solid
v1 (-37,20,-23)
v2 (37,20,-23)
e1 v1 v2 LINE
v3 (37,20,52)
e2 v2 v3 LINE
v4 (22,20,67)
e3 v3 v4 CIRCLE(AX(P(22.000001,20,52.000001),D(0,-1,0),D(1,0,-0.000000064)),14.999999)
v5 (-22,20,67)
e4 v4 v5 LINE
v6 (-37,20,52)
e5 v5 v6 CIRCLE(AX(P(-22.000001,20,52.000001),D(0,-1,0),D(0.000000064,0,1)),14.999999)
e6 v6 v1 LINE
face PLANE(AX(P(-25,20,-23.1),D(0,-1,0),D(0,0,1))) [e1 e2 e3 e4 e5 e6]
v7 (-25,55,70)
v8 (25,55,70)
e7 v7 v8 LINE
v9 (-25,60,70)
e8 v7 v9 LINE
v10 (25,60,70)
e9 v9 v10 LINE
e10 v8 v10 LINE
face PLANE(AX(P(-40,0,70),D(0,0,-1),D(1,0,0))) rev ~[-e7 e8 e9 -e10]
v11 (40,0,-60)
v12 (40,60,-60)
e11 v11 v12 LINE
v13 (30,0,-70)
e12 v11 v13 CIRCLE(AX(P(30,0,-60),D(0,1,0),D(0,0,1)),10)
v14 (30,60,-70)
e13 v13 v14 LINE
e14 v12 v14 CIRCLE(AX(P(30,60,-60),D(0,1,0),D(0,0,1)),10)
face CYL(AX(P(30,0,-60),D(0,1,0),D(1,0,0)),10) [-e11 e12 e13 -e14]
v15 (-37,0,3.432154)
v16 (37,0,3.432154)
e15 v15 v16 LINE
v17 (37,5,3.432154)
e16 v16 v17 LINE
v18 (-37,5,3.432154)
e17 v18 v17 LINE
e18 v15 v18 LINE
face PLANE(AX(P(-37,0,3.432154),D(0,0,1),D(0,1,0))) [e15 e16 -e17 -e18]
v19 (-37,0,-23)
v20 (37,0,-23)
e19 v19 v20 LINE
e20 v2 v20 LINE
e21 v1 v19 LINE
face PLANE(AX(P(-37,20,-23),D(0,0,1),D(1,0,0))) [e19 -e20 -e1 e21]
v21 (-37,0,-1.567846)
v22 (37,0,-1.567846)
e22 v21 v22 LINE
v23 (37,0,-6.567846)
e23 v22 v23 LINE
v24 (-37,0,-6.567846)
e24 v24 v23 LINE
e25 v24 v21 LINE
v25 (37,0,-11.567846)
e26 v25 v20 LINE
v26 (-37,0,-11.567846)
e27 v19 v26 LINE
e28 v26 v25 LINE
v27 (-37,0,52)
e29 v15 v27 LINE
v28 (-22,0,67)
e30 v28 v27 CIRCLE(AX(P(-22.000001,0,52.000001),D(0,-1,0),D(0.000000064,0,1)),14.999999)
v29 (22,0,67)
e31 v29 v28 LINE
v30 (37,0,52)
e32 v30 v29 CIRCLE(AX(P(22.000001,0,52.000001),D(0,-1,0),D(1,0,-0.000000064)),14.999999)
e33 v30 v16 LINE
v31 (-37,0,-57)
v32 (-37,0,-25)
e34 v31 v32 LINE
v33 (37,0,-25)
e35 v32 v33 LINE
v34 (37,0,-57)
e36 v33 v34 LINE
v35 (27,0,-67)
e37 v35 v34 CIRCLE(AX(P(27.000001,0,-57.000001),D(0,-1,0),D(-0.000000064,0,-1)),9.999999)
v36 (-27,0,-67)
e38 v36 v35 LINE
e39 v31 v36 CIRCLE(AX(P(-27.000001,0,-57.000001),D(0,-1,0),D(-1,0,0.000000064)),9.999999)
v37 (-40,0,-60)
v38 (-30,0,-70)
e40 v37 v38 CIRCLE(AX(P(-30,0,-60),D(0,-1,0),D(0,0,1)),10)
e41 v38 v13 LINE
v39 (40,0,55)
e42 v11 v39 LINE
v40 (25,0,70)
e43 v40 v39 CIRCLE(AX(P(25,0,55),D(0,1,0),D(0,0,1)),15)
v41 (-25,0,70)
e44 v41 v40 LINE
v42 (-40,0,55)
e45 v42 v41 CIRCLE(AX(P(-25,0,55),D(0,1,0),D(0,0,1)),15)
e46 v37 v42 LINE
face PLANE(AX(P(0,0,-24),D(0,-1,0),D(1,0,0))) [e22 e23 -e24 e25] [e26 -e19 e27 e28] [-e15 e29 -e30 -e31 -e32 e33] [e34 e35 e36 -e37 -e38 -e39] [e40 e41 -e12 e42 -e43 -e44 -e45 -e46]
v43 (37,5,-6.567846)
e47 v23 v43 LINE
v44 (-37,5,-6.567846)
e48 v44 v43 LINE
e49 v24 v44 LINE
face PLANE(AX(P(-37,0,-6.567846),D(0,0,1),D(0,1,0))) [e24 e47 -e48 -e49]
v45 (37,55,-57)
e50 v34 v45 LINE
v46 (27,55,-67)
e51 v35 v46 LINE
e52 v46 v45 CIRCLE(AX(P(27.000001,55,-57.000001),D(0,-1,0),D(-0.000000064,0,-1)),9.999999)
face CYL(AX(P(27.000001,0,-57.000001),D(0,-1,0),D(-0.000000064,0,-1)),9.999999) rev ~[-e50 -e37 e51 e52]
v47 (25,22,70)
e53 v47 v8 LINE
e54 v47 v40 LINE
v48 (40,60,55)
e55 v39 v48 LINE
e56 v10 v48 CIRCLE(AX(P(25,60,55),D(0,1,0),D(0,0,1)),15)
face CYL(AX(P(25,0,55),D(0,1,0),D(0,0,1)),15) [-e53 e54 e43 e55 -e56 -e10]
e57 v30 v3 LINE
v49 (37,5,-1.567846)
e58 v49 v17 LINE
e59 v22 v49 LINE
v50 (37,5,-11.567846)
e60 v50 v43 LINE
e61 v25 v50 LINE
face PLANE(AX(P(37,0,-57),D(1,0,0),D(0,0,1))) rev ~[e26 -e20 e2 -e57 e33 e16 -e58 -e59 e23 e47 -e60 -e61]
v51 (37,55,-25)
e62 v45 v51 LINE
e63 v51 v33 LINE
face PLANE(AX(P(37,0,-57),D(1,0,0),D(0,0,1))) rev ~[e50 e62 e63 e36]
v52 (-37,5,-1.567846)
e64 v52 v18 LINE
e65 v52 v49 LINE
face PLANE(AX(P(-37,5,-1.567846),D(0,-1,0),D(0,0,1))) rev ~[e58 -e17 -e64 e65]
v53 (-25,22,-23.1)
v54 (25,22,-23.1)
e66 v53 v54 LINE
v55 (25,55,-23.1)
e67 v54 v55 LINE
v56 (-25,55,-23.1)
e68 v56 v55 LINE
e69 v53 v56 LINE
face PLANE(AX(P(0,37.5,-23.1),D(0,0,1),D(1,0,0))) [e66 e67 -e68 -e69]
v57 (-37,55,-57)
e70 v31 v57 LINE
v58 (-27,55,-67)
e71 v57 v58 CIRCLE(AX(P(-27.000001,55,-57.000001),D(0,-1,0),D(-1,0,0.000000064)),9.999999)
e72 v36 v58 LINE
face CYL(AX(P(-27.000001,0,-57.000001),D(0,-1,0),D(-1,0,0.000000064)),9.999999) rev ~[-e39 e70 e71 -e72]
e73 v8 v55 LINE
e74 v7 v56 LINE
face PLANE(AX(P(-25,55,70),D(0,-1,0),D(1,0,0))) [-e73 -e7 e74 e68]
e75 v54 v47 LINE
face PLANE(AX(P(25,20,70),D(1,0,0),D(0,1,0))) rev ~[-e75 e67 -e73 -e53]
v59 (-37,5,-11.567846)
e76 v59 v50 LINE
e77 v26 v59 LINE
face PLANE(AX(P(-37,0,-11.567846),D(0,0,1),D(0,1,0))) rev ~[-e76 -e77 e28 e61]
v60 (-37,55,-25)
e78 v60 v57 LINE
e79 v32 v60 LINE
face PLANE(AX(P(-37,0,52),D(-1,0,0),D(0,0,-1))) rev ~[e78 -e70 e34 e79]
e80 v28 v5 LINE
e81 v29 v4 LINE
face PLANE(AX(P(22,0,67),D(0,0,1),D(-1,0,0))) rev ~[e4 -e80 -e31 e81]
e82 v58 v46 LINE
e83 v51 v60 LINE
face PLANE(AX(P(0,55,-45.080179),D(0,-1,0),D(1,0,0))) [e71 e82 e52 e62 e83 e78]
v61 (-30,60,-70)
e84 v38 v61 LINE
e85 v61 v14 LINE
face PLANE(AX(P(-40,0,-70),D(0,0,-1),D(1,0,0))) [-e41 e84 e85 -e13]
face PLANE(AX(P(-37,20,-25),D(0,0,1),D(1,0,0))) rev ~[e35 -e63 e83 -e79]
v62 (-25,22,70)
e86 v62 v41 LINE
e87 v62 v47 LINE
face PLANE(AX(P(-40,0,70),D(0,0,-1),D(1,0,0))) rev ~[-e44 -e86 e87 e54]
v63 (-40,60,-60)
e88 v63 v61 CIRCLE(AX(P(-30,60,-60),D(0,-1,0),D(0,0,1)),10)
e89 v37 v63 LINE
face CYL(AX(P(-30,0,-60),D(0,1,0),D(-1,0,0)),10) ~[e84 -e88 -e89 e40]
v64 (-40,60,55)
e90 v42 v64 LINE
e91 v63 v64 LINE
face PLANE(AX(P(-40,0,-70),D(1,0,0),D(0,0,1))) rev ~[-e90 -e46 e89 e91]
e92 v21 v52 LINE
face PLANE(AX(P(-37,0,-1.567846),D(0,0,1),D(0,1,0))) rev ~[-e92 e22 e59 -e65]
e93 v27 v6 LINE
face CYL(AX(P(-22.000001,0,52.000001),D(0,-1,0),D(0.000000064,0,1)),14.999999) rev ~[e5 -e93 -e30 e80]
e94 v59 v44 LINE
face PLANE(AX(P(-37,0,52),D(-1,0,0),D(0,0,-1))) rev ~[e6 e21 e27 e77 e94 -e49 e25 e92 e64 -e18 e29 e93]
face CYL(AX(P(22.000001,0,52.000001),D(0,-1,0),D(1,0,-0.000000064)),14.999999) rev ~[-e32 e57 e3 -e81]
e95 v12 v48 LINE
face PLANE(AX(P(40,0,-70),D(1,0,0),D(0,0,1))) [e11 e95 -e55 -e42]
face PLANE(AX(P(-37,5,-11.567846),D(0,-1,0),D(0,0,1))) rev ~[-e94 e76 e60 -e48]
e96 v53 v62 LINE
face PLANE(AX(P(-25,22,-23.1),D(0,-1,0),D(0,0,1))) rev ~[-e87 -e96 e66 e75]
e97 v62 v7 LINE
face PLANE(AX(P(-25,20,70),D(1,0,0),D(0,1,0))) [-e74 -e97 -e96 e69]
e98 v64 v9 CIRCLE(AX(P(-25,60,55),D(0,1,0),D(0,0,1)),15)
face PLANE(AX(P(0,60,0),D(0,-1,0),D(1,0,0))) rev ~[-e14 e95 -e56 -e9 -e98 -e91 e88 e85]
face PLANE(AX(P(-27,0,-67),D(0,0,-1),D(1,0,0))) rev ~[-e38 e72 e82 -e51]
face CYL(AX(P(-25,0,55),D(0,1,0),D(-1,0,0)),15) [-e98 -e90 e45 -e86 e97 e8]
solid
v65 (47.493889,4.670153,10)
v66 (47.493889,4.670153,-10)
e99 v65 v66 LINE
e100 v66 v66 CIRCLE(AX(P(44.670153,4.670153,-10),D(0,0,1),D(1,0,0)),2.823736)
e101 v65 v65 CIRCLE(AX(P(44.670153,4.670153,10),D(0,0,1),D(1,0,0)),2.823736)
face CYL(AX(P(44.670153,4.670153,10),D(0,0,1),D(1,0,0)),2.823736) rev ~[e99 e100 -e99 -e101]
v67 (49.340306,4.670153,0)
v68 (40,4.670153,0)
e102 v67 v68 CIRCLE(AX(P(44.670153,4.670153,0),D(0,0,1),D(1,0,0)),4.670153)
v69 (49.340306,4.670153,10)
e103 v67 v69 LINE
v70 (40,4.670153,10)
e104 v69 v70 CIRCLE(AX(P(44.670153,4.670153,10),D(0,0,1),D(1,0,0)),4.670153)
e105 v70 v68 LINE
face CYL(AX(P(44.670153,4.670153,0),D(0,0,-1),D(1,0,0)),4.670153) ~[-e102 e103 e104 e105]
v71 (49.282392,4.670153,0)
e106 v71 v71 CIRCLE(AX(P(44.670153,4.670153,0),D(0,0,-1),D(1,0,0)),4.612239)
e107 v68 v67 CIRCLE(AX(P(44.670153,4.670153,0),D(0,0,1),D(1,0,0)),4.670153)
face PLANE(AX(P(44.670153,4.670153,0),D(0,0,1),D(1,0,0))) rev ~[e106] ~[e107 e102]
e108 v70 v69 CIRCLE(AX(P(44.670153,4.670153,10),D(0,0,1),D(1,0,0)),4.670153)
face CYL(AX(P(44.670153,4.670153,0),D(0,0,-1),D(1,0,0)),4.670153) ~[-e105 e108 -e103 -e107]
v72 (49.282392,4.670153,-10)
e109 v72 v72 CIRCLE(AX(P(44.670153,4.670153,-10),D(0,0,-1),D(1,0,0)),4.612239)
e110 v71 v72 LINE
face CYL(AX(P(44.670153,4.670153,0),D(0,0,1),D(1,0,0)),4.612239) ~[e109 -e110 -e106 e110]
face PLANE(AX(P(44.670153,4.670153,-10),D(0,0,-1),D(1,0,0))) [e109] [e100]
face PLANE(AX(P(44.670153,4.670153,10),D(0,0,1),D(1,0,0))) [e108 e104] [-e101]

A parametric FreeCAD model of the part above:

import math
import FreeCAD as App
import Part
import Sketcher
from FreeCAD import Vector
Q = App.Units.Quantity


def edges_at(feature, points):
    """Names of the edges that pass closest to the given points."""
    edges = feature.Shape.Edges
    near = lambda p: min(range(len(edges)), key=lambda i: edges[i].distToShape(Part.Vertex(*p))[0])
    return sorted({f"Edge{near(p) + 1}" for p in points})

doc = App.newDocument("Part")
body = doc.addObject("PartDesign::Body", "Body")
body.AllowCompound = True

# Sketch on XZ plane
sketch1 = body.newObject("Sketcher::SketchObject", "Sketch")
sketch1.AttachmentSupport = (doc.getObject("XZ_Plane"), [""])
sketch1.MapMode = "FlatFace"
sketch1.addGeometry(Part.LineSegment(Vector(-40, 70, 0), Vector(-40, -70, 0)), False)
sketch1.addGeometry(Part.LineSegment(Vector(-40, -70, 0), Vector(40, -70, 0)), False)
sketch1.addGeometry(Part.LineSegment(Vector(40, -70, 0), Vector(40, 70, 0)), False)
sketch1.addGeometry(Part.LineSegment(Vector(40, 70, 0), Vector(-40, 70, 0)), False)
sketch1.addConstraint(Sketcher.Constraint("Coincident", 0, 2, 1, 1))
sketch1.addConstraint(Sketcher.Constraint("Coincident", 1, 2, 2, 1))
sketch1.addConstraint(Sketcher.Constraint("Coincident", 2, 2, 3, 1))
sketch1.addConstraint(Sketcher.Constraint("Coincident", 3, 2, 0, 1))
sketch1.addConstraint(Sketcher.Constraint("Vertical", 0))
sketch1.addConstraint(Sketcher.Constraint("Horizontal", 1))
sketch1.addConstraint(Sketcher.Constraint("Vertical", 2))
sketch1.addConstraint(Sketcher.Constraint("Horizontal", 3))
sketch1.addConstraint(Sketcher.Constraint("Symmetric", 0, 2, 2, 2, -1, 1))
sketch1.addConstraint(Sketcher.Constraint("DistanceX", 1, 1, 1, 2, Q("80 mm")))
sketch1.addConstraint(Sketcher.Constraint("DistanceY", 0, 2, 0, 1, Q("140 mm")))
pad1 = body.newObject("PartDesign::Pad", "Pad")
pad1.Profile = sketch1
pad1.Length = 60
pad1.Reversed = True
doc.recompute()

fillet = body.newObject("PartDesign::Fillet", "Fillet")
fillet.Base = (pad1, edges_at(pad1, [(-40, 30, 70)]))
fillet.Radius = 15
doc.recompute()

fillet2 = body.newObject("PartDesign::Fillet", "Fillet001")
fillet2.Base = (fillet, edges_at(fillet, [(40, 30, 70)]))
fillet2.Radius = 15
doc.recompute()

fillet3 = body.newObject("PartDesign::Fillet", "Fillet002")
fillet3.Base = (fillet2, edges_at(fillet2, [(-40, 30, -70), (40, 30, -70)]))
fillet3.Radius = 10

# Sketch on XZ plane
sketch2 = body.newObject("Sketcher::SketchObject", "Sketch001")
sketch2.AttachmentSupport = (doc.getObject("XZ_Plane"), [""])
sketch2.MapMode = "FlatFace"
sketch2.addGeometry(Part.LineSegment(Vector(37, -57, 0), Vector(37, -25, 0)), False)
sketch2.addGeometry(Part.LineSegment(Vector(37, -25, 0), Vector(-37, -25, 0)), False)
sketch2.addGeometry(Part.LineSegment(Vector(-37, -25, 0), Vector(-37, -57, 0)), False)
sketch2.addGeometry(Part.ArcOfCircle(Part.Circle(Vector(-27, -57, 0), Vector(0, 0, 1), 10), math.radians(180), math.radians(270)), False)
sketch2.addGeometry(Part.LineSegment(Vector(-27, -67, 0), Vector(27, -67, 0)), False)
sketch2.addGeometry(Part.ArcOfCircle(Part.Circle(Vector(27, -57, 0), Vector(0, 0, 1), 10), math.radians(-90), math.radians(0)), False)
sketch2.addConstraint(Sketcher.Constraint("Coincident", 0, 2, 1, 1))
sketch2.addConstraint(Sketcher.Constraint("Coincident", 1, 2, 2, 1))
sketch2.addConstraint(Sketcher.Constraint("Tangent", 2, 2, 3, 1))
sketch2.addConstraint(Sketcher.Constraint("Tangent", 3, 2, 4, 1))
sketch2.addConstraint(Sketcher.Constraint("Tangent", 4, 2, 5, 1))
sketch2.addConstraint(Sketcher.Constraint("Tangent", 5, 2, 0, 1))
sketch2.addConstraint(Sketcher.Constraint("Vertical", 0))
sketch2.addConstraint(Sketcher.Constraint("Horizontal", 1))
sketch2.addConstraint(Sketcher.Constraint("Vertical", 2))
sketch2.addConstraint(Sketcher.Constraint("Horizontal", 4))
sketch2.addConstraint(Sketcher.Constraint("Equal", 3, 5))
sketch2.addConstraint(Sketcher.Constraint("Radius", 3, Q("9.999999 mm")))
sketch2.addConstraint(Sketcher.Constraint("DistanceX", 1, 2, 1, 1, Q("74 mm")))
sketch2.addConstraint(Sketcher.Constraint("DistanceY", 0, 1, 0, 2, Q("32 mm")))
sketch2.addConstraint(Sketcher.Constraint("DistanceX", 3, 3, -1, 1, Q("27.000001 mm")))
sketch2.addConstraint(Sketcher.Constraint("DistanceY", 3, 3, -1, 1, Q("57.000001 mm")))
pocket1 = body.newObject("PartDesign::Pocket", "Pocket")
pocket1.Profile = sketch2
pocket1.Length = 55

# Sketch on XZ plane
sketch3 = body.newObject("Sketcher::SketchObject", "Sketch002")
sketch3.AttachmentSupport = (doc.getObject("XZ_Plane"), [""])
sketch3.MapMode = "FlatFace"
sketch3.addGeometry(Part.ArcOfCircle(Part.Circle(Vector(22, 52, 0), Vector(0, 0, 1), 15), math.radians(0), math.radians(90)), False)
sketch3.addGeometry(Part.LineSegment(Vector(22, 67, 0), Vector(-22, 67, 0)), False)
sketch3.addGeometry(Part.ArcOfCircle(Part.Circle(Vector(-22, 52, 0), Vector(0, 0, 1), 15), math.radians(90), math.radians(180)), False)
sketch3.addGeometry(Part.LineSegment(Vector(-37, 52, 0), Vector(-37, -25, 0)), False)
sketch3.addGeometry(Part.LineSegment(Vector(-37, -25, 0), Vector(37, -25, 0)), False)
sketch3.addGeometry(Part.LineSegment(Vector(37, -25, 0), Vector(37, 52, 0)), False)
sketch3.addConstraint(Sketcher.Constraint("Tangent", 0, 2, 1, 1))
sketch3.addConstraint(Sketcher.Constraint("Tangent", 1, 2, 2, 1))
sketch3.addConstraint(Sketcher.Constraint("Tangent", 2, 2, 3, 1))
sketch3.addConstraint(Sketcher.Constraint("Coincident", 3, 2, 4, 1))
sketch3.addConstraint(Sketcher.Constraint("Coincident", 4, 2, 5, 1))
sketch3.addConstraint(Sketcher.Constraint("Tangent", 5, 2, 0, 1))
sketch3.addConstraint(Sketcher.Constraint("Horizontal", 1))
sketch3.addConstraint(Sketcher.Constraint("Vertical", 3))
sketch3.addConstraint(Sketcher.Constraint("Horizontal", 4))
sketch3.addConstraint(Sketcher.Constraint("Vertical", 5))
sketch3.addConstraint(Sketcher.Constraint("Equal", 0, 2))
sketch3.addConstraint(Sketcher.Constraint("Radius", 0, Q("14.999999 mm")))
sketch3.addConstraint(Sketcher.Constraint("DistanceX", 1, 2, 1, 1, Q("44 mm")))
sketch3.addConstraint(Sketcher.Constraint("DistanceY", 3, 2, 3, 1, Q("77 mm")))
sketch3.addConstraint(Sketcher.Constraint("DistanceX", -1, 1, 0, 3, Q("22.000001 mm")))
sketch3.addConstraint(Sketcher.Constraint("DistanceY", -1, 1, 0, 3, Q("52.000001 mm")))
pocket2 = body.newObject("PartDesign::Pocket", "Pocket001")
pocket2.Profile = sketch3
pocket2.Length = 20

# Sketch on XZ plane
sketch4 = body.newObject("Sketcher::SketchObject", "Sketch003")
sketch4.AttachmentSupport = (doc.getObject("XZ_Plane"), [""])
sketch4.MapMode = "FlatFace"
sketch4.AttachmentOffset = App.Placement(Vector(0, 0, -20), App.Rotation())
sketch4.addGeometry(Part.LineSegment(Vector(-37, -23, 0), Vector(-37, -25, 0)), False)
sketch4.addGeometry(Part.LineSegment(Vector(-37, -25, 0), Vector(37, -25, 0)), False)
sketch4.addGeometry(Part.LineSegment(Vector(37, -25, 0), Vector(37, -23, 0)), False)
sketch4.addGeometry(Part.LineSegment(Vector(37, -23, 0), Vector(-37, -23, 0)), False)
sketch4.addConstraint(Sketcher.Constraint("Coincident", 0, 2, 1, 1))
sketch4.addConstraint(Sketcher.Constraint("Coincident", 1, 2, 2, 1))
sketch4.addConstraint(Sketcher.Constraint("Coincident", 2, 2, 3, 1))
sketch4.addConstraint(Sketcher.Constraint("Coincident", 3, 2, 0, 1))
sketch4.addConstraint(Sketcher.Constraint("Vertical", 0))
sketch4.addConstraint(Sketcher.Constraint("Horizontal", 1))
sketch4.addConstraint(Sketcher.Constraint("Vertical", 2))
sketch4.addConstraint(Sketcher.Constraint("Horizontal", 3))
sketch4.addConstraint(Sketcher.Constraint("DistanceX", 1, 1, 1, 2, Q("74 mm")))
sketch4.addConstraint(Sketcher.Constraint("DistanceY", 0, 2, 0, 1, Q("2 mm")))
sketch4.addConstraint(Sketcher.Constraint("DistanceX", 0, 2, -1, 1, Q("37 mm")))
sketch4.addConstraint(Sketcher.Constraint("DistanceY", 0, 2, -1, 1, Q("25 mm")))
pad2 = body.newObject("PartDesign::Pad", "Pad001")
pad2.Profile = sketch4
pad2.Length = 20

# Sketch on XY plane
sketch5 = body.newObject("Sketcher::SketchObject", "Sketch004")
sketch5.AttachmentSupport = (doc.getObject("XY_Plane"), [""])
sketch5.MapMode = "FlatFace"
sketch5.AttachmentOffset = App.Placement(Vector(0, 0, 70), App.Rotation())
sketch5.addGeometry(Part.LineSegment(Vector(-25, 55, 0), Vector(-25, 20, 0)), False)
sketch5.addGeometry(Part.LineSegment(Vector(-25, 20, 0), Vector(25, 20, 0)), False)
sketch5.addGeometry(Part.LineSegment(Vector(25, 20, 0), Vector(25, 55, 0)), False)
sketch5.addGeometry(Part.LineSegment(Vector(25, 55, 0), Vector(-25, 55, 0)), False)
sketch5.addConstraint(Sketcher.Constraint("Coincident", 0, 2, 1, 1))
sketch5.addConstraint(Sketcher.Constraint("Coincident", 1, 2, 2, 1))
sketch5.addConstraint(Sketcher.Constraint("Coincident", 2, 2, 3, 1))
sketch5.addConstraint(Sketcher.Constraint("Coincident", 3, 2, 0, 1))
sketch5.addConstraint(Sketcher.Constraint("Vertical", 0))
sketch5.addConstraint(Sketcher.Constraint("Horizontal", 1))
sketch5.addConstraint(Sketcher.Constraint("Vertical", 2))
sketch5.addConstraint(Sketcher.Constraint("Horizontal", 3))
sketch5.addConstraint(Sketcher.Constraint("DistanceX", 1, 1, 1, 2, Q("50 mm")))
sketch5.addConstraint(Sketcher.Constraint("DistanceY", 0, 2, 0, 1, Q("35 mm")))
sketch5.addConstraint(Sketcher.Constraint("DistanceX", 0, 2, -1, 1, Q("25 mm")))
sketch5.addConstraint(Sketcher.Constraint("DistanceY", -1, 1, 0, 2, Q("20 mm")))
pocket3 = body.newObject("PartDesign::Pocket", "Pocket002")
pocket3.Profile = sketch5
pocket3.Length = 93.1

# Sketch on YZ plane
sketch6 = body.newObject("Sketcher::SketchObject", "Sketch005")
sketch6.AttachmentSupport = (doc.getObject("YZ_Plane"), [""])
sketch6.MapMode = "FlatFace"
sketch6.AttachmentOffset = App.Placement(Vector(0, 0, -25), App.Rotation())
sketch6.addGeometry(Part.LineSegment(Vector(20, 70, 0), Vector(20, -23.1, 0)), False)
sketch6.addGeometry(Part.LineSegment(Vector(20, -23.1, 0), Vector(22, -23.1, 0)), False)
sketch6.addGeometry(Part.LineSegment(Vector(22, -23.1, 0), Vector(22, 70, 0)), False)
sketch6.addGeometry(Part.LineSegment(Vector(22, 70, 0), Vector(20, 70, 0)), False)
sketch6.addConstraint(Sketcher.Constraint("Coincident", 0, 2, 1, 1))
sketch6.addConstraint(Sketcher.Constraint("Coincident", 1, 2, 2, 1))
sketch6.addConstraint(Sketcher.Constraint("Coincident", 2, 2, 3, 1))
sketch6.addConstraint(Sketcher.Constraint("Coincident", 3, 2, 0, 1))
sketch6.addConstraint(Sketcher.Constraint("Vertical", 0))
sketch6.addConstraint(Sketcher.Constraint("Horizontal", 1))
sketch6.addConstraint(Sketcher.Constraint("Vertical", 2))
sketch6.addConstraint(Sketcher.Constraint("Horizontal", 3))
sketch6.addConstraint(Sketcher.Constraint("DistanceX", 1, 1, 1, 2, Q("2 mm")))
sketch6.addConstraint(Sketcher.Constraint("DistanceY", 0, 2, 0, 1, Q("93.1 mm")))
sketch6.addConstraint(Sketcher.Constraint("DistanceX", -1, 1, 0, 2, Q("20 mm")))
sketch6.addConstraint(Sketcher.Constraint("DistanceY", -1, 1, 2, 2, Q("70 mm")))
pad3 = body.newObject("PartDesign::Pad", "Pad002")
pad3.Profile = sketch6
pad3.Length = 50

# Sketch on YZ plane
sketch7 = body.newObject("Sketcher::SketchObject", "Sketch006")
sketch7.AttachmentSupport = (doc.getObject("YZ_Plane"), [""])
sketch7.MapMode = "FlatFace"
sketch7.AttachmentOffset = App.Placement(Vector(0, 0, -37), App.Rotation())
sketch7.addGeometry(Part.LineSegment(Vector(0, 3.4, 0), Vector(0, -1.6, 0)), False)
sketch7.addGeometry(Part.LineSegment(Vector(0, -1.6, 0), Vector(5, -1.6, 0)), False)
sketch7.addGeometry(Part.LineSegment(Vector(5, -1.6, 0), Vector(5, 3.4, 0)), False)
sketch7.addGeometry(Part.LineSegment(Vector(5, 3.4, 0), Vector(0, 3.4, 0)), False)
sketch7.addGeometry(Part.LineSegment(Vector(0, -6.6, 0), Vector(0, -11.6, 0)), False)
sketch7.addGeometry(Part.LineSegment(Vector(0, -11.6, 0), Vector(5, -11.6, 0)), False)
sketch7.addGeometry(Part.LineSegment(Vector(5, -11.6, 0), Vector(5, -6.6, 0)), False)
sketch7.addGeometry(Part.LineSegment(Vector(5, -6.6, 0), Vector(0, -6.6, 0)), False)
sketch7.addConstraint(Sketcher.Constraint("Coincident", 0, 2, 1, 1))
sketch7.addConstraint(Sketcher.Constraint("Coincident", 1, 2, 2, 1))
sketch7.addConstraint(Sketcher.Constraint("Coincident", 2, 2, 3, 1))
sketch7.addConstraint(Sketcher.Constraint("Coincident", 3, 2, 0, 1))
sketch7.addConstraint(Sketcher.Constraint("Coincident", 4, 2, 5, 1))
sketch7.addConstraint(Sketcher.Constraint("Coincident", 5, 2, 6, 1))
sketch7.addConstraint(Sketcher.Constraint("Coincident", 6, 2, 7, 1))
sketch7.addConstraint(Sketcher.Constraint("Coincident", 7, 2, 4, 1))
sketch7.addConstraint(Sketcher.Constraint("Vertical", 0))
sketch7.addConstraint(Sketcher.Constraint("Horizontal", 1))
sketch7.addConstraint(Sketcher.Constraint("Vertical", 2))
sketch7.addConstraint(Sketcher.Constraint("Horizontal", 3))
sketch7.addConstraint(Sketcher.Constraint("Vertical", 4))
sketch7.addConstraint(Sketcher.Constraint("Horizontal", 5))
sketch7.addConstraint(Sketcher.Constraint("Vertical", 6))
sketch7.addConstraint(Sketcher.Constraint("Horizontal", 7))
sketch7.addConstraint(Sketcher.Constraint("PointOnObject", 0, 2, -2))
sketch7.addConstraint(Sketcher.Constraint("PointOnObject", 4, 2, -2))
sketch7.addConstraint(Sketcher.Constraint("Vertical", 2, 2, 5, 2))
sketch7.addConstraint(Sketcher.Constraint("Equal", 7, 0))
sketch7.addConstraint(Sketcher.Constraint("Equal", 2, 4))
sketch7.addConstraint(Sketcher.Constraint("DistanceX", 1, 1, 1, 2, Q("5 mm")))
sketch7.addConstraint(Sketcher.Constraint("DistanceY", 4, 2, 0, 2, Q("10 mm")))
sketch7.addConstraint(Sketcher.Constraint("DistanceY", 0, 2, -1, 1, Q("1.567846 mm")))
pad4 = body.newObject("PartDesign::Pad", "Pad003")
pad4.Profile = sketch7
pad4.Length = 74

# Sketch on XY plane
sketch8 = body.newObject("Sketcher::SketchObject", "Sketch007")
sketch8.AttachmentSupport = (doc.getObject("XY_Plane"), [""])
sketch8.MapMode = "FlatFace"
sketch8.addGeometry(Part.Circle(Vector(44.7, 4.7, 0), Vector(0, 0, 1), 4.7), False)
sketch8.addConstraint(Sketcher.Constraint("Diameter", 0, Q("9.340306 mm")))
sketch8.addConstraint(Sketcher.Constraint("DistanceX", -1, 1, 0, 3, Q("44.670153 mm")))
sketch8.addConstraint(Sketcher.Constraint("DistanceY", -1, 1, 0, 3, Q("4.670153 mm")))
pad5 = body.newObject("PartDesign::Pad", "Pad004")
pad5.Profile = sketch8
pad5.Length = 10

# Sketch on XY plane
sketch9 = body.newObject("Sketcher::SketchObject", "Sketch008")
sketch9.AttachmentSupport = (doc.getObject("XY_Plane"), [""])
sketch9.MapMode = "FlatFace"
sketch9.addGeometry(Part.Circle(Vector(44.7, 4.7, 0), Vector(0, 0, 1), 4.6), False)
sketch9.addConstraint(Sketcher.Constraint("Diameter", 0, Q("9.224478 mm")))
sketch9.addConstraint(Sketcher.Constraint("DistanceX", -1, 1, 0, 3, Q("44.670153 mm")))
sketch9.addConstraint(Sketcher.Constraint("DistanceY", -1, 1, 0, 3, Q("4.670153 mm")))
pad6 = body.newObject("PartDesign::Pad", "Pad005")
pad6.Profile = sketch9
pad6.Length = 10
pad6.Reversed = True

# Sketch on XY plane
sketch10 = body.newObject("Sketcher::SketchObject", "Sketch009")
sketch10.AttachmentSupport = (doc.getObject("XY_Plane"), [""])
sketch10.MapMode = "FlatFace"
sketch10.AttachmentOffset = App.Placement(Vector(0, 0, 10), App.Rotation())
sketch10.addGeometry(Part.Circle(Vector(44.7, 4.7, 0), Vector(0, 0, 1), 2.8), False)
sketch10.addConstraint(Sketcher.Constraint("Diameter", 0, Q("5.647472 mm")))
sketch10.addConstraint(Sketcher.Constraint("DistanceX", -1, 1, 0, 3, Q("44.670153 mm")))
sketch10.addConstraint(Sketcher.Constraint("DistanceY", -1, 1, 0, 3, Q("4.670153 mm")))
pocket4 = body.newObject("PartDesign::Pocket", "Pocket003")
pocket4.Profile = sketch10
pocket4.Length = 30.5

doc.recompute()
